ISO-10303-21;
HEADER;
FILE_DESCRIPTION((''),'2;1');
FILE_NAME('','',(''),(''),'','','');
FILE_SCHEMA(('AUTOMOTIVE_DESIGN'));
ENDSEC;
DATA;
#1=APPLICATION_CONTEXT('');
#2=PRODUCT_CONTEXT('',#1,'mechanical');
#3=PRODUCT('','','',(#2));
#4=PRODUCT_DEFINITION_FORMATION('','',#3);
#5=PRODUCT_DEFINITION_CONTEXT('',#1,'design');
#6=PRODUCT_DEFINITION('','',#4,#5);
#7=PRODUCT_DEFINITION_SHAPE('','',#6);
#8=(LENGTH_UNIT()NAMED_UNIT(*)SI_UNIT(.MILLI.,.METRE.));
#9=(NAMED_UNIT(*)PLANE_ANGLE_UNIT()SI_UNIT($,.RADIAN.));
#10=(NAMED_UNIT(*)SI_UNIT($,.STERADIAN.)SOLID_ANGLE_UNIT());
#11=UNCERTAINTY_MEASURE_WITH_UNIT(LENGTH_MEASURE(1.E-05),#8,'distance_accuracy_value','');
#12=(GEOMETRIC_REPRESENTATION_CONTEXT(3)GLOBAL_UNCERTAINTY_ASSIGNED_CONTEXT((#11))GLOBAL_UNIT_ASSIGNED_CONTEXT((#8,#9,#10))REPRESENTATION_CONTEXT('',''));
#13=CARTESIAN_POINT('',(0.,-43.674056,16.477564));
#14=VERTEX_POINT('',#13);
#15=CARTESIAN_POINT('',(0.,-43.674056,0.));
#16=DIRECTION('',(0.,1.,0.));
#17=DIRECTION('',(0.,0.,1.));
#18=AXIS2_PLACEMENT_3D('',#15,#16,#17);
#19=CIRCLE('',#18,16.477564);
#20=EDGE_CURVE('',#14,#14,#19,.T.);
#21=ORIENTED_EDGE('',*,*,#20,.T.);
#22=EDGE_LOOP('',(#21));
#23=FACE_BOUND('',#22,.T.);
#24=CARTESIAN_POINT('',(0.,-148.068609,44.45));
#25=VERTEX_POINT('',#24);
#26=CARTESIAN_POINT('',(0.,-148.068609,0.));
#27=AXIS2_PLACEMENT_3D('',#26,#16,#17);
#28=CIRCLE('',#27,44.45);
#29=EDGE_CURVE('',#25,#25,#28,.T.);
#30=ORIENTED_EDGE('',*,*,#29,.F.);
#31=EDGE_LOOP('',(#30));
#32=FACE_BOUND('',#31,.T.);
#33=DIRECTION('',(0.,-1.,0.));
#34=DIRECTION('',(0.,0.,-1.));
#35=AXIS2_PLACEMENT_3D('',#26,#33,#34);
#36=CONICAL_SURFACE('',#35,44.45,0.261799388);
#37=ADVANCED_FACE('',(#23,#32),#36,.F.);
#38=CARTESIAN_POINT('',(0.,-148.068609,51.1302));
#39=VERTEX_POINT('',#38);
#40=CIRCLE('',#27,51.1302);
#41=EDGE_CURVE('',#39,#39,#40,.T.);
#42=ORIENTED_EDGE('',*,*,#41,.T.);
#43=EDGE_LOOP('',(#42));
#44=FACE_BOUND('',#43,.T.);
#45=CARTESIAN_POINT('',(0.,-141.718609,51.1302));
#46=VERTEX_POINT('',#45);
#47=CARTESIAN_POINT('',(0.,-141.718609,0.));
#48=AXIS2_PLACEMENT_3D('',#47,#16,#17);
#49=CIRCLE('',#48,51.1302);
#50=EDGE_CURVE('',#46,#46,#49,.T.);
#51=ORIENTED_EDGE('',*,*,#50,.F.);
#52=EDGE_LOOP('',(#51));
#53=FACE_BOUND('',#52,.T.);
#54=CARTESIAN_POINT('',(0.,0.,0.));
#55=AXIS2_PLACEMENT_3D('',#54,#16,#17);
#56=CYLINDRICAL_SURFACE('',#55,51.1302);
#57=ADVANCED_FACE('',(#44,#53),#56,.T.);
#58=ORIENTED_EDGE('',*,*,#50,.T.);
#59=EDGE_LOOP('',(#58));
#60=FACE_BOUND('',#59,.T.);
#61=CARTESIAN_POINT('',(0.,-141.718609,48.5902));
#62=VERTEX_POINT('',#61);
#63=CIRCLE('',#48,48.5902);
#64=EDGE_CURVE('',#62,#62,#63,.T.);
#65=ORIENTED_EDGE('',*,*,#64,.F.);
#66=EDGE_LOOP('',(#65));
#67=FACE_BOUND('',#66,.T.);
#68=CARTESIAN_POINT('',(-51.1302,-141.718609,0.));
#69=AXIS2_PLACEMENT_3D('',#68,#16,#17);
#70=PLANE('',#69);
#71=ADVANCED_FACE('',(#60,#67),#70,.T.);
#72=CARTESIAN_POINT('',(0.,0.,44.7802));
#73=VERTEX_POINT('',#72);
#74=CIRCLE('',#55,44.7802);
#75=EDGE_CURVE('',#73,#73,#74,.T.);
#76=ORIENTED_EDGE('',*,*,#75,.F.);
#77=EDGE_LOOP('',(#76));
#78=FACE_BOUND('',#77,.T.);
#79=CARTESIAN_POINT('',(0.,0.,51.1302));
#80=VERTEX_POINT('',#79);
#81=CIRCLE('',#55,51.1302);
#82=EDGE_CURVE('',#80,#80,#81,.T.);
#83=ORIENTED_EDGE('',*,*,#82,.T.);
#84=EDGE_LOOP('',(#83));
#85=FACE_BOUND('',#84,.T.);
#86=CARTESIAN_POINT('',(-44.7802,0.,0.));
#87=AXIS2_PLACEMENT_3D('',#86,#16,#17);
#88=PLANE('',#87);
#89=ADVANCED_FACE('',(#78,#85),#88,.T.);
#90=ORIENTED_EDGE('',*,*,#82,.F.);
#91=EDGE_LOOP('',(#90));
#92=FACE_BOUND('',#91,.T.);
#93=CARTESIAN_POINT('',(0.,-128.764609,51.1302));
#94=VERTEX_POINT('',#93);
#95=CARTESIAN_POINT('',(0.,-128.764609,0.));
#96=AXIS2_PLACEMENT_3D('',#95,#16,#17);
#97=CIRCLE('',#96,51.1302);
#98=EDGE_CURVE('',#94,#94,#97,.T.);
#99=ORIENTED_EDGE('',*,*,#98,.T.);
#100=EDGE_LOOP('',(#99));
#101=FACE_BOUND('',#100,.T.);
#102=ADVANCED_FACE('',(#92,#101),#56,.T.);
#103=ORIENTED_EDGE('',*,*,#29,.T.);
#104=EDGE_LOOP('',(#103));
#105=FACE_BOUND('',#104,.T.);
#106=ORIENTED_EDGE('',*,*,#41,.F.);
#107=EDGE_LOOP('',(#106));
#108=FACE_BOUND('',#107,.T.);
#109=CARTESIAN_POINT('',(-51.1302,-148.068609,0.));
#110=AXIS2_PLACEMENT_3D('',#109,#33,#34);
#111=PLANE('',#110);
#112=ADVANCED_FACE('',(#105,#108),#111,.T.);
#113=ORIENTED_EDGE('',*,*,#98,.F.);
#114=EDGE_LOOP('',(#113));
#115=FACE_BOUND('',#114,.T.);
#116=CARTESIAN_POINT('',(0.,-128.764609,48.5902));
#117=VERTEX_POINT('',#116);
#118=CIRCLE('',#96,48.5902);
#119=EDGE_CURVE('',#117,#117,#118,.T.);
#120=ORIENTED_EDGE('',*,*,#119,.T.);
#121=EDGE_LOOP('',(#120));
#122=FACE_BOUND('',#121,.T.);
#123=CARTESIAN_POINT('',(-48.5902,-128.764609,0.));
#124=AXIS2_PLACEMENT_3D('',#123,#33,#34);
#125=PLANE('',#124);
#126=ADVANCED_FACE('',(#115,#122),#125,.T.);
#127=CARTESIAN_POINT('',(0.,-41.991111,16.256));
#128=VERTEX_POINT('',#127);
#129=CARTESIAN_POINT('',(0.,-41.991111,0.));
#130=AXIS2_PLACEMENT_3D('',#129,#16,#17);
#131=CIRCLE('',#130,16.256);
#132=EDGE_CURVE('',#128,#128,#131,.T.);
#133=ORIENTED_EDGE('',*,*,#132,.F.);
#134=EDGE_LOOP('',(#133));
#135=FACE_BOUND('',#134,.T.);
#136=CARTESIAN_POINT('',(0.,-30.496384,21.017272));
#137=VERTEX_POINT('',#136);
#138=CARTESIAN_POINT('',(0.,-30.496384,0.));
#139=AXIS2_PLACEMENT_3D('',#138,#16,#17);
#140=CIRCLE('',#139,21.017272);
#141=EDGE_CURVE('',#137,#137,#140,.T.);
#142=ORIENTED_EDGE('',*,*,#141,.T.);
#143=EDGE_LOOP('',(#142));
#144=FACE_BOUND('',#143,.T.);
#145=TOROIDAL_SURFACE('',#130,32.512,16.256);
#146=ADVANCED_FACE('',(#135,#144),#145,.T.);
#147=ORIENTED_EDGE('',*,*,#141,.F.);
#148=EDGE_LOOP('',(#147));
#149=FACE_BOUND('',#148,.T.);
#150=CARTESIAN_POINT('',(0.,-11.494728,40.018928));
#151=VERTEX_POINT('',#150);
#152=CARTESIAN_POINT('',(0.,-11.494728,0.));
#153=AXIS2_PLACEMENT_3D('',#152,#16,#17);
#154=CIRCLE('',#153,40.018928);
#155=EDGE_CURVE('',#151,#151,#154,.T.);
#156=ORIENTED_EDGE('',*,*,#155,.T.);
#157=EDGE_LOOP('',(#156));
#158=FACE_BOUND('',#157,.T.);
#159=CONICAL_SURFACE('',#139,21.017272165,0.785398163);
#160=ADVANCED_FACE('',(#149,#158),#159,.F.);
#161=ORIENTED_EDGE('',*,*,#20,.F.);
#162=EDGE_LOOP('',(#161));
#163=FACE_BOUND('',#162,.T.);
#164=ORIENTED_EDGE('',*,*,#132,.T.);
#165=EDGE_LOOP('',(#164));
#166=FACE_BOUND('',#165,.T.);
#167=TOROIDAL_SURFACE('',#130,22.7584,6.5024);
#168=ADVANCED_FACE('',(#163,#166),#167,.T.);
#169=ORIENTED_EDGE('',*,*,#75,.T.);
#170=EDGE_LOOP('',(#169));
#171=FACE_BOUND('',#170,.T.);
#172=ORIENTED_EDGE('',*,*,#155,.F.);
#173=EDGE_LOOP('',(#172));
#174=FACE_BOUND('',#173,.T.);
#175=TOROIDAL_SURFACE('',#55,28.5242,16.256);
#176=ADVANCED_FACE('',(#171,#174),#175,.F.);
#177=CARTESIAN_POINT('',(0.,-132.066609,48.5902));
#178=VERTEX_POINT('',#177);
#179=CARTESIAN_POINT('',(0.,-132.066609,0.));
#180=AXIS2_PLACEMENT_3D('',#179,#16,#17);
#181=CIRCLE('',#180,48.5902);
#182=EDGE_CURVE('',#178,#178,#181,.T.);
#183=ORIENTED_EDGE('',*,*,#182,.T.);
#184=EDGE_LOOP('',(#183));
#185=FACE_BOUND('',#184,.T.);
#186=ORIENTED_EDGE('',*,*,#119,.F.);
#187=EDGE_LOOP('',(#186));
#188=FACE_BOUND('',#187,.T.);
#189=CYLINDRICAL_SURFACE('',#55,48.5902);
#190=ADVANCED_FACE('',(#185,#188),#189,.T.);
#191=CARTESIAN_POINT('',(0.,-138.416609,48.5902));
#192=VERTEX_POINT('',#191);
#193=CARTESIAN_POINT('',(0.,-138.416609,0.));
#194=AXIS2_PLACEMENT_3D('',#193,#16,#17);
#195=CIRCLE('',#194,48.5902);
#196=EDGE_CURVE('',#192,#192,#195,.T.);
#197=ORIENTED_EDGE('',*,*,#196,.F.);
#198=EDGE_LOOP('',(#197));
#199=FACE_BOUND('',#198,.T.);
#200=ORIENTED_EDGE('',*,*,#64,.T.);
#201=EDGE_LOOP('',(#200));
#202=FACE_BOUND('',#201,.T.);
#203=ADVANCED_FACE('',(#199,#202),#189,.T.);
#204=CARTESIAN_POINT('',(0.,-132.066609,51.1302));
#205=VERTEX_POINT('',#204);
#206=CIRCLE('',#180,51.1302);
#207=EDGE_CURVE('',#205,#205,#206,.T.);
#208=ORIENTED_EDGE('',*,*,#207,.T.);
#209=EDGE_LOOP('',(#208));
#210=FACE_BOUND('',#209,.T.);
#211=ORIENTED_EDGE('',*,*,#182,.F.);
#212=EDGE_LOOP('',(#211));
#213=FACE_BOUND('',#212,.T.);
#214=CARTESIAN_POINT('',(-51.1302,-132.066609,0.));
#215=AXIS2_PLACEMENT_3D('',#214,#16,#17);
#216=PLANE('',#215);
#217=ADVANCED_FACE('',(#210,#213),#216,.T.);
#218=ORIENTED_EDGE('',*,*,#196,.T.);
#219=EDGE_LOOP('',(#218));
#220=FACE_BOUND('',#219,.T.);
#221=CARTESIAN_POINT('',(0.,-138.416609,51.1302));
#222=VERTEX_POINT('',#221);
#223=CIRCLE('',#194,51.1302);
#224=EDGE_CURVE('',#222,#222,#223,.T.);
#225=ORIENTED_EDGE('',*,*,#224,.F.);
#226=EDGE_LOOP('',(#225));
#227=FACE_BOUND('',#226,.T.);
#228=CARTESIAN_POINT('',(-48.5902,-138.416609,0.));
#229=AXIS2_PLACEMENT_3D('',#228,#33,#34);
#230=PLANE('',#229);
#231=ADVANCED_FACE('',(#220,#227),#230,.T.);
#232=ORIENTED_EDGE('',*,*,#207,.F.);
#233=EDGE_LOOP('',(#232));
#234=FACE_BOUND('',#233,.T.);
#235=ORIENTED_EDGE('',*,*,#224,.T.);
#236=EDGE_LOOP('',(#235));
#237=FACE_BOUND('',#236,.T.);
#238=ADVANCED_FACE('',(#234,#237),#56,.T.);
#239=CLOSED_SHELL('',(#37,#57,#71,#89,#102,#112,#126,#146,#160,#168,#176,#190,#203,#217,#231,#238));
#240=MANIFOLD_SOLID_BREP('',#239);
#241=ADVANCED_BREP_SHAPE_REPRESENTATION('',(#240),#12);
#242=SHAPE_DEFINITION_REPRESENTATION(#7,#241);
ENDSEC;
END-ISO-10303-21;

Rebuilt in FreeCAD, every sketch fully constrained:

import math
import FreeCAD as App
import Part
import Sketcher

V = App.Vector
Q = App.Units.Quantity

doc = App.newDocument("Part")
body = doc.addObject("PartDesign::Body", "Body")

# Sketch on XY plane
sketch1 = doc.addObject("Sketcher::SketchObject", "Sketch")
body.addObject(sketch1)
sketch1.AttachmentSupport = (doc.XY_Plane, [""])
sketch1.MapMode = "FlatFace"
sketch1.addGeometry([
    Part.LineSegment(V(-51.1302, 0, 0), V(-51.1302, -128.764609, 0)),  # 0
    Part.LineSegment(V(-51.1302, -128.764609, 0), V(-48.5902, -128.764609, 0)),  # 1
    Part.LineSegment(V(-48.5902, -128.764609, 0), V(-48.5902, -132.066609, 0)),  # 2
    Part.LineSegment(V(-48.5902, -132.066609, 0), V(-51.1302, -132.066609, 0)),  # 3
    Part.LineSegment(V(-51.1302, -132.066609, 0), V(-51.1302, -138.416609, 0)),  # 4
    Part.LineSegment(V(-51.1302, -138.416609, 0), V(-48.5902, -138.416609, 0)),  # 5
    Part.LineSegment(V(-48.5902, -138.416609, 0), V(-48.5902, -141.718609, 0)),  # 6
    Part.LineSegment(V(-48.5902, -141.718609, 0), V(-51.1302, -141.718609, 0)),  # 7
    Part.LineSegment(V(-51.1302, -141.718609, 0), V(-51.1302, -148.068609, 0)),  # 8
    Part.LineSegment(V(-51.1302, -148.068609, 0), V(-44.45, -148.068609, 0)),  # 9
    Part.LineSegment(V(-44.45, -148.068609, 0), V(-16.477564, -43.674056, 0)),  # 10
    Part.ArcOfCircle(Part.Circle(V(-22.7584, -41.991111, 0), V(0, 0, 1), 6.5024), math.radians(-15), math.radians(0)),  # 11
    Part.ArcOfCircle(Part.Circle(V(-32.512, -41.991111, 0), V(0, 0, 1), 16.256), math.radians(0), math.radians(45)),  # 12
    Part.LineSegment(V(-21.017272, -30.496384, 0), V(-40.018928, -11.494728, 0)),  # 13
    Part.ArcOfCircle(Part.Circle(V(-28.5242, 0, 0), V(0, 0, 1), 16.256), math.radians(180), math.radians(225)),  # 14
    Part.LineSegment(V(-44.7802, 0, 0), V(-51.1302, 0, 0)),  # 15
], False)
sketch1.addConstraint([
    Sketcher.Constraint("Coincident", 0, 2, 1, 1),
    Sketcher.Constraint("Coincident", 1, 2, 2, 1),
    Sketcher.Constraint("Coincident", 2, 2, 3, 1),
    Sketcher.Constraint("Coincident", 3, 2, 4, 1),
    Sketcher.Constraint("Coincident", 4, 2, 5, 1),
    Sketcher.Constraint("Coincident", 5, 2, 6, 1),
    Sketcher.Constraint("Coincident", 6, 2, 7, 1),
    Sketcher.Constraint("Coincident", 7, 2, 8, 1),
    Sketcher.Constraint("Coincident", 8, 2, 9, 1),
    Sketcher.Constraint("Coincident", 9, 2, 10, 1),
    Sketcher.Constraint("Tangent", 10, 2, 11, 1),
    Sketcher.Constraint("Tangent", 11, 2, 12, 1),
    Sketcher.Constraint("Tangent", 12, 2, 13, 1),
    Sketcher.Constraint("Tangent", 13, 2, 14, 2),
    Sketcher.Constraint("Coincident", 14, 1, 15, 1),
    Sketcher.Constraint("Coincident", 15, 2, 0, 1),
    Sketcher.Constraint("Vertical", 0),
    Sketcher.Constraint("Horizontal", 1),
    Sketcher.Constraint("Vertical", 2),
    Sketcher.Constraint("Horizontal", 3),
    Sketcher.Constraint("Vertical", 4),
    Sketcher.Constraint("Horizontal", 5),
    Sketcher.Constraint("Vertical", 6),
    Sketcher.Constraint("Horizontal", 7),
    Sketcher.Constraint("Vertical", 8),
    Sketcher.Constraint("Horizontal", 9),
    Sketcher.Constraint("Horizontal", 15),
    Sketcher.Constraint("Equal", 12, 14),
    Sketcher.Constraint("PointOnObject", 14, 3, -1),
    Sketcher.Constraint("PointOnObject", 14, 1, -1),
    Sketcher.Constraint("Horizontal", 11, 3, 12, 3),
    Sketcher.Constraint("Vertical", 0, 2, 3, 2),
    Sketcher.Constraint("Vertical", 2, 2, 5, 2),
    Sketcher.Constraint("Vertical", 4, 2, 7, 2),
    Sketcher.Constraint("Equal", 15, 4),
    Sketcher.Constraint("Equal", 2, 6),
    Sketcher.Constraint("Equal", 4, 8),
    Sketcher.Constraint("Radius", 12, Q("0.64 in")),
    Sketcher.Constraint("DistanceX", 1, 1, 1, 2, Q("0.1 in")),
    Sketcher.Constraint("Angle", 10, Q("75 deg")),
    Sketcher.Constraint("Angle", 13, Q("135 deg")),
    Sketcher.Constraint("Radius", 11, Q("0.256 in")),
    Sketcher.Constraint("DistanceX", 15, 2, 15, 1, Q("0.25 in")),
    Sketcher.Constraint("DistanceY", 2, 2, 2, 1, Q("0.13 in")),
    Sketcher.Constraint("DistanceX", 9, 1, 9, 2, Q("0.263 in")),
    Sketcher.Constraint("DistanceX", 12, 3, -1, 1, Q("1.28 in")),
    Sketcher.Constraint("DistanceX", 9, 2, -1, 1, Q("1.75 in")),
])
revolution = doc.addObject("PartDesign::Revolution", "Revolution")
body.addObject(revolution)
revolution.Profile = sketch1
revolution.ReferenceAxis = (sketch1, ["V_Axis"])
revolution.Angle = 360

doc.recompute()
